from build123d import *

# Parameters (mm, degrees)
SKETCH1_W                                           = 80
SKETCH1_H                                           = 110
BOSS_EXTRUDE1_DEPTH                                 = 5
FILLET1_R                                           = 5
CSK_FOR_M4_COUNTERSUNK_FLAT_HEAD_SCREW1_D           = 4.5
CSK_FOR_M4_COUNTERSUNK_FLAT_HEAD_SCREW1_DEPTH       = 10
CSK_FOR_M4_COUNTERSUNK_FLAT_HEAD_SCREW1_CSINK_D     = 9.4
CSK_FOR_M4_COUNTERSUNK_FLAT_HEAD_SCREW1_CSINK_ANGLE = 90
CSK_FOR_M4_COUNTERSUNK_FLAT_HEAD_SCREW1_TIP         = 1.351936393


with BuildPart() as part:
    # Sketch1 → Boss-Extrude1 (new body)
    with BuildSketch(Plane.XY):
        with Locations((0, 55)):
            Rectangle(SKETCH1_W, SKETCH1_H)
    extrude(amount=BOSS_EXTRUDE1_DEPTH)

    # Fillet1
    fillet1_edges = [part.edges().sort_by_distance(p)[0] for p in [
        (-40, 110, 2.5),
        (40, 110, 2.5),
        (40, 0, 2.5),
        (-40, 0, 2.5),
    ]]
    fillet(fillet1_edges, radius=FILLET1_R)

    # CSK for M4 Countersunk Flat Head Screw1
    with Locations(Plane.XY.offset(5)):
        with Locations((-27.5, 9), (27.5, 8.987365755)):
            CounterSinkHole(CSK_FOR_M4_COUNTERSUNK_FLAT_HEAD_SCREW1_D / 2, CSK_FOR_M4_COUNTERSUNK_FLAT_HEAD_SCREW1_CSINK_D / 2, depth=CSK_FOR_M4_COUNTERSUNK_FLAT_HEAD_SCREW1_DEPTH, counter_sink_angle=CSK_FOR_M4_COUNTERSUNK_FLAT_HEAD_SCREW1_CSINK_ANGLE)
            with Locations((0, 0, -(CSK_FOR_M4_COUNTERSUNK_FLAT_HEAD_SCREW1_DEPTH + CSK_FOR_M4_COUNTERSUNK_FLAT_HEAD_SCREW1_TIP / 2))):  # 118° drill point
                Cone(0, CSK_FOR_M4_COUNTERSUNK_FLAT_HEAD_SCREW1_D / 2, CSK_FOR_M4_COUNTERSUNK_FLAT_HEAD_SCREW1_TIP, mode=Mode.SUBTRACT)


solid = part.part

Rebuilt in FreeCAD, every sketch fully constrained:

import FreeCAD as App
import Part
import Sketcher
from FreeCAD import Vector


def edges_at(feature, points):
    """Names of the edges that pass closest to the given points."""
    edges = feature.Shape.Edges
    near = lambda p: min(range(len(edges)), key=lambda i: edges[i].distToShape(Part.Vertex(*p))[0])
    return sorted({f"Edge{near(p) + 1}" for p in points})


def add_polygon(sketch, points):
    """Adds a closed chain of lines whose ends are joined by coincident constraints."""
    first, n = sketch.GeometryCount, len(points)
    for a, b in zip(points, points[1:] + points[:1]):
        sketch.addGeometry(Part.LineSegment(App.Vector(*a, 0), App.Vector(*b, 0)), False)
    for i in range(n):
        sketch.addConstraint(Sketcher.Constraint("Coincident", first + i, 2, first + (i + 1) % n, 1))

doc = App.newDocument("Part")
body = doc.addObject("PartDesign::Body", "Body")

sketch1 = body.newObject("Sketcher::SketchObject", "Sketch")
sketch1.AttachmentSupport = (doc.getObject("XY_Plane"), [""])
sketch1.MapMode = "FlatFace"
add_polygon(sketch1, [(-40, 110), (-40, 0), (40, 0), (40, 110)])
sketch1.addConstraint(Sketcher.Constraint("Vertical", 0))
sketch1.addConstraint(Sketcher.Constraint("Horizontal", 1))
sketch1.addConstraint(Sketcher.Constraint("Vertical", 2))
sketch1.addConstraint(Sketcher.Constraint("Horizontal", 3))
sketch1.addConstraint(Sketcher.Constraint("Symmetric", 0, 2, 1, 2, -1, 1))
sketch1.addConstraint(Sketcher.Constraint("DistanceX", 1, 1, 1, 2, 80.0))
sketch1.addConstraint(Sketcher.Constraint("DistanceY", 0, 2, 0, 1, 110.0))
pad1 = body.newObject("PartDesign::Pad", "Pad")
pad1.Profile = sketch1
pad1.Length = 5
doc.recompute()

fillet = body.newObject("PartDesign::Fillet", "Fillet")
fillet.Base = (pad1, edges_at(pad1, [
    (-40, 110, 2.5),
    (40, 110, 2.5),
    (40, 0, 2.5),
    (-40, 0, 2.5),
]))
fillet.Radius = 5

sketch2 = body.newObject("Sketcher::SketchObject", "Sketch001")
sketch2.AttachmentSupport = (doc.getObject("XY_Plane"), [""])
sketch2.MapMode = "FlatFace"
sketch2.AttachmentOffset = App.Placement(Vector(0, 0, 5), App.Rotation())
sketch2.addGeometry(Part.Circle(Vector(-27.5, 9, 0), Vector(0, 0, 1), 2.2), False)
sketch2.addGeometry(Part.Circle(Vector(27.5, 9, 0), Vector(0, 0, 1), 2.2), False)
sketch2.addConstraint(Sketcher.Constraint("Equal", 0, 1))
sketch2.addConstraint(Sketcher.Constraint("Diameter", 0, 4.5))
sketch2.addConstraint(Sketcher.Constraint("DistanceY", -1, 1, 0, 3, 9.0))
sketch2.addConstraint(Sketcher.Constraint("DistanceX", 0, 3, 1, 3, 55.0))
sketch2.addConstraint(Sketcher.Constraint("DistanceX", 0, 3, -1, 1, 27.5))
sketch2.addConstraint(Sketcher.Constraint("DistanceY", -1, 1, 1, 3, 8.987366))
doc.recompute()
hole = body.newObject("PartDesign::Hole", "Hole")
hole.Profile = sketch2
hole.ThreadType = "None"
hole.Diameter = 4.5
hole.DepthType = "Dimension"
hole.Depth = 10
hole.DrillPoint = "Angled"
hole.DrillPointAngle = 118
hole.HoleCutType = "Countersink"
hole.HoleCutDiameter = 9.4
hole.HoleCutCountersinkAngle = 90

doc.recompute()
